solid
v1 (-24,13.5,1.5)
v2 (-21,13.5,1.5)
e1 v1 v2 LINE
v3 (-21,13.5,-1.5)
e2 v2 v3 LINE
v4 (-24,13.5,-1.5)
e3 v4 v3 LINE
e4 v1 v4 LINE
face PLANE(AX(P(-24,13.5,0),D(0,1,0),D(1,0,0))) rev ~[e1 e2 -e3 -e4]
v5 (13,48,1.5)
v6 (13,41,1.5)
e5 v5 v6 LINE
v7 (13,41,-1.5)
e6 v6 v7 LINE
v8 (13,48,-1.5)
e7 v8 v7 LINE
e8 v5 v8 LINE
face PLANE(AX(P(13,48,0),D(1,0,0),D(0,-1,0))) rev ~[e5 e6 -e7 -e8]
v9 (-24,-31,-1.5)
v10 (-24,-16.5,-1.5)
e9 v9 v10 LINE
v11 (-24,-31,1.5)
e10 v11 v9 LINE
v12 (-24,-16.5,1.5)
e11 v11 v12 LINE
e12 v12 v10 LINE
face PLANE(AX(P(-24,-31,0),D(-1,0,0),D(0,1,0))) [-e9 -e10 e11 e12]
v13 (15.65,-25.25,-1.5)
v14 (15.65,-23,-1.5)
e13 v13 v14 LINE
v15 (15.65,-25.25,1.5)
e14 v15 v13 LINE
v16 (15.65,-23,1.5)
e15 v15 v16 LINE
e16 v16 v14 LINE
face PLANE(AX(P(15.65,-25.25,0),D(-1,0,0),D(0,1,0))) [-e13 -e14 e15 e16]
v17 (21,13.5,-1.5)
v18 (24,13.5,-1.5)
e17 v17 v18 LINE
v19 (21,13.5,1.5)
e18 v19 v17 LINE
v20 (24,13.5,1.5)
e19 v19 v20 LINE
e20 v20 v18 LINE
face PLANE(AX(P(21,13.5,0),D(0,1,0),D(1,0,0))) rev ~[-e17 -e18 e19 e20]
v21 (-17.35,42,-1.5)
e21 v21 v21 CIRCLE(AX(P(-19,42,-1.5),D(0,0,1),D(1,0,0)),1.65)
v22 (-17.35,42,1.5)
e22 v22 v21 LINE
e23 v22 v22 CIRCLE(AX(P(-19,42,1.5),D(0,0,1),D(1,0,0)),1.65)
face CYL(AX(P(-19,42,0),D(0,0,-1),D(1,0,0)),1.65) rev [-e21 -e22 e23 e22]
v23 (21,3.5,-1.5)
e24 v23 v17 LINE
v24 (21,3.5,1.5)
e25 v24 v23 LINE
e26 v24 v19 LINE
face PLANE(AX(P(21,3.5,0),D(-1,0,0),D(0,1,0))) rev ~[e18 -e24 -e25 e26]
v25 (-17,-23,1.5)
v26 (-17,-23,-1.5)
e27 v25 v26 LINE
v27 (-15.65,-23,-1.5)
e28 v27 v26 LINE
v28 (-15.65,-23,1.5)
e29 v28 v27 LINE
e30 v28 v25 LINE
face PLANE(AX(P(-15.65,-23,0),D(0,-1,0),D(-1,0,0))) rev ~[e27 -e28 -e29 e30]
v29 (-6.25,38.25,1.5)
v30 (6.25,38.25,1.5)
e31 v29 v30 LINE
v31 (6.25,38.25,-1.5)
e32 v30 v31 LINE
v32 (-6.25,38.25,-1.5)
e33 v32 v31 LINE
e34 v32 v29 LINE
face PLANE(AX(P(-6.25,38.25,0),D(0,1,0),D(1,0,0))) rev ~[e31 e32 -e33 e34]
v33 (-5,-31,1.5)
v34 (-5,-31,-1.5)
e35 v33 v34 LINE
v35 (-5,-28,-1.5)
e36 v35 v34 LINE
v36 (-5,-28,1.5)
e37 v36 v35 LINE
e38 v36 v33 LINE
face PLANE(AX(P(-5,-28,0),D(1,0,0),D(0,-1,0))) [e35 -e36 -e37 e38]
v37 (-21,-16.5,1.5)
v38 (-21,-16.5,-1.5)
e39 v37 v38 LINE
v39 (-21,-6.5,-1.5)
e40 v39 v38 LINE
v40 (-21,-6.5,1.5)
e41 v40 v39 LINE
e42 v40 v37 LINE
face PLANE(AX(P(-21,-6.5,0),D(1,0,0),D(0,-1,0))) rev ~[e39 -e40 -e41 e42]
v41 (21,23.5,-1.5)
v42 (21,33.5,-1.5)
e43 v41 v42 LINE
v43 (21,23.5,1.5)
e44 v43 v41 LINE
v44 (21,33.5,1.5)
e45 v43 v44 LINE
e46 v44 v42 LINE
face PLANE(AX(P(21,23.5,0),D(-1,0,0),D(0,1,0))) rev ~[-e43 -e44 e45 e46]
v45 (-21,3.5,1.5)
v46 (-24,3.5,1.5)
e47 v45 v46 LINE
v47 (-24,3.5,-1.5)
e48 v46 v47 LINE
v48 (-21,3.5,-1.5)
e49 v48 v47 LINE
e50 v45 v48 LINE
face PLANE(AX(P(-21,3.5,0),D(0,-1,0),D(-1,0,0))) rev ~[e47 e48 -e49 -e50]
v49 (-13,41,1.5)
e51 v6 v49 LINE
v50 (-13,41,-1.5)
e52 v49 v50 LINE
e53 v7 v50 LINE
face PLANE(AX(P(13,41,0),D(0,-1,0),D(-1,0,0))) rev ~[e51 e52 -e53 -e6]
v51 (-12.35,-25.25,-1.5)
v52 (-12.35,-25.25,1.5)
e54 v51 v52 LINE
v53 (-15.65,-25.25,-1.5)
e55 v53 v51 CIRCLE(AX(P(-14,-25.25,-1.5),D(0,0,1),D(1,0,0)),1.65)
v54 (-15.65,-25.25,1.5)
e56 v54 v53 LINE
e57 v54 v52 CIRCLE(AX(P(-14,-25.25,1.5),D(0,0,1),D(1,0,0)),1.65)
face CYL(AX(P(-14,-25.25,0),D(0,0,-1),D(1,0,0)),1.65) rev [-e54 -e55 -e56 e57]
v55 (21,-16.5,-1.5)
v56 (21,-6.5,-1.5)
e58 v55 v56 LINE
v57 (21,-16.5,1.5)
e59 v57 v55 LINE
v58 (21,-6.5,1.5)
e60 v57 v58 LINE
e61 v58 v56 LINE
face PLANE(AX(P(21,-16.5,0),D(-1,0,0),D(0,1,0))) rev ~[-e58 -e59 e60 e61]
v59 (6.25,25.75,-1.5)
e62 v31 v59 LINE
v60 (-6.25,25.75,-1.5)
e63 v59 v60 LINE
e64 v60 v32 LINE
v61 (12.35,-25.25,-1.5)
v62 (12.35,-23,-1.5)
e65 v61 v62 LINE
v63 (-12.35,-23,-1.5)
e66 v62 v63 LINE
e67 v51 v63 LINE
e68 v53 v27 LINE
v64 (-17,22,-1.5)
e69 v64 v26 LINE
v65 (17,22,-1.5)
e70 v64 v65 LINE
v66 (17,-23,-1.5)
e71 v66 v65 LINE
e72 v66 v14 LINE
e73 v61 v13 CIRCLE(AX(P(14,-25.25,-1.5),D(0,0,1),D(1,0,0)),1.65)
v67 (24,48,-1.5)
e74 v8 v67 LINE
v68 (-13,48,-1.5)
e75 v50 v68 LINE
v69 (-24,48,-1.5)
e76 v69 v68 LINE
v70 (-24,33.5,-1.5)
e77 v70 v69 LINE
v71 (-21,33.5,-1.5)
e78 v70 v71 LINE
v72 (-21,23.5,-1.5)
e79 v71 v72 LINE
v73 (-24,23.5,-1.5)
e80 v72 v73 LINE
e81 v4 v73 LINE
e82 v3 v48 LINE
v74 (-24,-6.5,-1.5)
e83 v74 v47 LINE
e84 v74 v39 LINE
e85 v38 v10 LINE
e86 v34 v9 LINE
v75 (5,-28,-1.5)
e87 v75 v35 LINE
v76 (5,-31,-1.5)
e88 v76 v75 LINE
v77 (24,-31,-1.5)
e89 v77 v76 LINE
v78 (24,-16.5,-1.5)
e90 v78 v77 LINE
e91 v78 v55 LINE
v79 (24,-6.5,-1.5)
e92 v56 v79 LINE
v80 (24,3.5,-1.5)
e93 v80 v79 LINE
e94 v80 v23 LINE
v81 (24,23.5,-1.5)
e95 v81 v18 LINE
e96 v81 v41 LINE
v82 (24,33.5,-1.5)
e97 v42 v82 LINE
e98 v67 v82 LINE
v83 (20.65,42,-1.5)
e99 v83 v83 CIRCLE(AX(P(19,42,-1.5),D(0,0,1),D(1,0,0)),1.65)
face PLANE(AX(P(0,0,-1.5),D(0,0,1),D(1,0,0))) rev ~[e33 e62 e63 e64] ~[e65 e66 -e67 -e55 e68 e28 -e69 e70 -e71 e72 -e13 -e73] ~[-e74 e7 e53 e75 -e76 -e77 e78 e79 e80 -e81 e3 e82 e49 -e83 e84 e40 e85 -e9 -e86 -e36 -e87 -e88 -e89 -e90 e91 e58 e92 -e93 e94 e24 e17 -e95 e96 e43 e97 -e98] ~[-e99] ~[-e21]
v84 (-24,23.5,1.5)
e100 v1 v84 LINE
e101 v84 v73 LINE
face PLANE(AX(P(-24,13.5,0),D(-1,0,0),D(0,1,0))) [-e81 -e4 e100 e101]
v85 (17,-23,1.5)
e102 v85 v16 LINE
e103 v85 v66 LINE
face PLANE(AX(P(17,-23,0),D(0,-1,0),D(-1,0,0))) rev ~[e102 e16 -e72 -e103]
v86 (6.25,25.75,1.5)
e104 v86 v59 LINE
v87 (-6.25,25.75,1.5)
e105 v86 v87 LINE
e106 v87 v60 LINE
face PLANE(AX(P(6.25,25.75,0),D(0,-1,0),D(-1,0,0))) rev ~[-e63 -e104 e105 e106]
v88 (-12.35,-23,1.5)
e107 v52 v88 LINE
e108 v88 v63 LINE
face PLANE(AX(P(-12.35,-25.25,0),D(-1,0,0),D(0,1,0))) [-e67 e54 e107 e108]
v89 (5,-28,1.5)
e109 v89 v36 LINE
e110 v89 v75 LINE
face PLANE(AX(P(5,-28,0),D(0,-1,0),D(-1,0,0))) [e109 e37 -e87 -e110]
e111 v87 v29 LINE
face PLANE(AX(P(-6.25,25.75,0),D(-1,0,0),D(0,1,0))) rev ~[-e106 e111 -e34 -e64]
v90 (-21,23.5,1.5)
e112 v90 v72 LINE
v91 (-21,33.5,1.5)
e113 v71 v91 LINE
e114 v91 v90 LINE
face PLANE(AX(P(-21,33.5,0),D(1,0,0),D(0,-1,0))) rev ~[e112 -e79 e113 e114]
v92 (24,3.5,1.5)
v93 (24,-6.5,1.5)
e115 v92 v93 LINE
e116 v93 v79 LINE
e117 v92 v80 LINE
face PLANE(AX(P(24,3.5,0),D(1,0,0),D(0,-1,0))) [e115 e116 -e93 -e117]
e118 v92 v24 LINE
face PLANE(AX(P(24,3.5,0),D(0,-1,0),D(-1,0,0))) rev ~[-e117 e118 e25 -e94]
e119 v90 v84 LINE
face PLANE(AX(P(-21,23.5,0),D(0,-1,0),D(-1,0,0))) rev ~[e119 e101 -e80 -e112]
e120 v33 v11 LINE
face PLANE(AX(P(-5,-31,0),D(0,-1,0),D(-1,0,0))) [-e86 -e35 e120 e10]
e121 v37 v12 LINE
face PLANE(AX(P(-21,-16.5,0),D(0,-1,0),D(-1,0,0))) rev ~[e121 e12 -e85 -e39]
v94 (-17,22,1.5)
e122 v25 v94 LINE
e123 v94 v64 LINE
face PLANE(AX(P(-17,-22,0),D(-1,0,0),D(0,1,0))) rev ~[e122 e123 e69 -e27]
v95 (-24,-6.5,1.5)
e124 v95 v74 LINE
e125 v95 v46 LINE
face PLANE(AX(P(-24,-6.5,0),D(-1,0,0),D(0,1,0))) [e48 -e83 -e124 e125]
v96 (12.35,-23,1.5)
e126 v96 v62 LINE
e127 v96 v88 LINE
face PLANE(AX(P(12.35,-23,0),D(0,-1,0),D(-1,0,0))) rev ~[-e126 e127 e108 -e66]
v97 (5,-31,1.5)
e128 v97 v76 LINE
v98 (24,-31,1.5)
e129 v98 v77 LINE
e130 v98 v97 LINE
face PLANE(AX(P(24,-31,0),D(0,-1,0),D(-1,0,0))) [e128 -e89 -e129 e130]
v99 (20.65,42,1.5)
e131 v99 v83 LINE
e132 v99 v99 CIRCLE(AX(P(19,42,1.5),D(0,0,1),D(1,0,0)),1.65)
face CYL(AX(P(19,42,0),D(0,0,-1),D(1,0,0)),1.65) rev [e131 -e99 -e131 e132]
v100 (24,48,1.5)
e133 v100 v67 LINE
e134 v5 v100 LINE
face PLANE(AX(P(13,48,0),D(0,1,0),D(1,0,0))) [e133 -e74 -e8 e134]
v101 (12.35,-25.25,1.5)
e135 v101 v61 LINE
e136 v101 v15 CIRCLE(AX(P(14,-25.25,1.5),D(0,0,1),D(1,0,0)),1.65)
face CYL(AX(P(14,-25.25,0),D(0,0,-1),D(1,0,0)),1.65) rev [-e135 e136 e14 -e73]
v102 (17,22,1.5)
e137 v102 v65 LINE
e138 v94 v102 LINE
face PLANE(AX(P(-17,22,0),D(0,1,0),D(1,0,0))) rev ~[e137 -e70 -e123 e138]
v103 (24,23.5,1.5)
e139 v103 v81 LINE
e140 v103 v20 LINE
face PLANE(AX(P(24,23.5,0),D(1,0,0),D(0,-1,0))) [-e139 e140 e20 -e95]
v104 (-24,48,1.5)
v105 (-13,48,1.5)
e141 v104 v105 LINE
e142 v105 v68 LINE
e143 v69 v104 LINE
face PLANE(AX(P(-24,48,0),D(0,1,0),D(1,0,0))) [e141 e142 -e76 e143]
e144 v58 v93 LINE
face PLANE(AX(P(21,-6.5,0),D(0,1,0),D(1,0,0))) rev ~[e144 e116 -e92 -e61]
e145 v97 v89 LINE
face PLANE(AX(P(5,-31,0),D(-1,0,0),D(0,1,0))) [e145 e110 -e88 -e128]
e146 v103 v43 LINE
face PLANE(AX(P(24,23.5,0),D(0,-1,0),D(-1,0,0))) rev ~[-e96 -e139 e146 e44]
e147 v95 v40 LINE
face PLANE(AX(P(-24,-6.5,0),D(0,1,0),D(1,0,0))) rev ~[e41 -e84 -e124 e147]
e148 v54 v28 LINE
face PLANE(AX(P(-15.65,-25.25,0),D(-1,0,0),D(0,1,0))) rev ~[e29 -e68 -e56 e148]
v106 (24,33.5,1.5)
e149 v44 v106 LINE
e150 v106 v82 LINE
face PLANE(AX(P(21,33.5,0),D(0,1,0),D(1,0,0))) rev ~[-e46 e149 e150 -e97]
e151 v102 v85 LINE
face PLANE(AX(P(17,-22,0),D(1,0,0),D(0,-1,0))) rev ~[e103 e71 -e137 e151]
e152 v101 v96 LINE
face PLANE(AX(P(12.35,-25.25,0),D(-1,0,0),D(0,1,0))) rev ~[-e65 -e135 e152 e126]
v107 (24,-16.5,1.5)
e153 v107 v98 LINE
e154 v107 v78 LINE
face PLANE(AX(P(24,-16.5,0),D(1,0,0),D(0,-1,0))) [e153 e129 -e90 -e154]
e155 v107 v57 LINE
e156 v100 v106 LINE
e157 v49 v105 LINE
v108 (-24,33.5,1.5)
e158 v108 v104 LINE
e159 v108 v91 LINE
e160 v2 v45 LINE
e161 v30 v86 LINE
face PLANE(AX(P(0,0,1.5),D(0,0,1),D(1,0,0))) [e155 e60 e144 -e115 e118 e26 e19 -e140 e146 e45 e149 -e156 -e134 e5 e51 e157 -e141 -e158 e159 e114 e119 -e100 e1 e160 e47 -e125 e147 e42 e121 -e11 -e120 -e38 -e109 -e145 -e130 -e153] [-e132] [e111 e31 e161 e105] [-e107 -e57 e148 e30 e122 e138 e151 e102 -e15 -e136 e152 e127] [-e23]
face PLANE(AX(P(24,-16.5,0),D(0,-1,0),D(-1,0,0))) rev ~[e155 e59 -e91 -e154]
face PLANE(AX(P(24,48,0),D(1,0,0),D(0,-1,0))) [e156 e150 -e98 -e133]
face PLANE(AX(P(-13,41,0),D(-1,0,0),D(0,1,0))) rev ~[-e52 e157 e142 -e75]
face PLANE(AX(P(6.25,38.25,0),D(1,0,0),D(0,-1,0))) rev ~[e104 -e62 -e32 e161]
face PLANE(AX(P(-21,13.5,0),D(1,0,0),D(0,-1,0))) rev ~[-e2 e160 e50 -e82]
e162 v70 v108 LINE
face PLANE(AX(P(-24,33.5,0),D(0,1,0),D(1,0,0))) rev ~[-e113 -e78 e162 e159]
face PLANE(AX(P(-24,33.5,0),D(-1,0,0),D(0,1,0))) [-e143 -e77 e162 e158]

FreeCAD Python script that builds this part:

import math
import FreeCAD as App
import Part
import Sketcher
Q = App.Units.Quantity


def add_polygon(sketch, points):
    """Adds a closed chain of lines whose ends are joined by coincident constraints."""
    first, n = sketch.GeometryCount, len(points)
    for a, b in zip(points, points[1:] + points[:1]):
        sketch.addGeometry(Part.LineSegment(App.Vector(*a, 0), App.Vector(*b, 0)), False)
    for i in range(n):
        sketch.addConstraint(Sketcher.Constraint("Coincident", first + i, 2, first + (i + 1) % n, 1))

doc = App.newDocument("Part")
params = doc.addObject("Spreadsheet::Sheet", "Params")
for row, (alias, value) in enumerate([
    ("sketch1_diameter", "3.3 mm"),
    ("sketch1_width", "3 mm"),
    ("sketch1_width2", "19 mm"),
    ("sketch1_width3", "10 mm"),
    ("sketch1_width4", "26 mm"),
    ("pad1_length", "3 mm"),
], start=1):
    params.set(f"A{row}", alias)
    params.set(f"B{row}", "=" + value)
    params.setAlias(f"B{row}", alias)

body = doc.addObject("PartDesign::Body", "Body")

# Sketch on XY plane
sketch1 = body.newObject("Sketcher::SketchObject", "Sketch")
sketch1.AttachmentSupport = (doc.getObject("XY_Plane"), [""])
sketch1.MapMode = "FlatFace"
add_polygon(sketch1, [(-13, 48), (-24, 48), (-24, 33.5), (-21, 33.5), (-21, 23.5), (-24, 23.5), (-24, 13.5), (-21, 13.5), (-21, 3.5), (-24, 3.5), (-24, -6.5), (-21, -6.5), (-21, -16.5), (-24, -16.5), (-24, -31), (-5, -31), (-5, -28), (5, -28), (5, -31), (24, -31), (24, -16.5), (21, -16.5), (21, -6.5), (24, -6.5), (24, 3.5), (21, 3.5), (21, 13.5), (24, 13.5), (24, 23.5), (21, 23.5), (21, 33.5), (24, 33.5), (24, 48), (13, 48), (13, 41), (-13, 41)])  # lines 0-35
sketch1.addGeometry(Part.LineSegment(App.Vector(-12.3, -23, 0), App.Vector(-12.3, -25.2, 0)), False)  # 36
sketch1.addGeometry(Part.ArcOfCircle(Part.Circle(App.Vector(-14, -25.2, 0), App.Vector(0, 0, 1), 1.6), math.radians(180), math.radians(360)), False)  # 37
sketch1.addGeometry(Part.LineSegment(App.Vector(-15.7, -25.2, 0), App.Vector(-15.7, -23, 0)), False)  # 38
sketch1.addGeometry(Part.LineSegment(App.Vector(-15.7, -23, 0), App.Vector(-17, -23, 0)), False)  # 39
sketch1.addGeometry(Part.LineSegment(App.Vector(-17, -23, 0), App.Vector(-17, 22, 0)), False)  # 40
sketch1.addGeometry(Part.LineSegment(App.Vector(-17, 22, 0), App.Vector(17, 22, 0)), False)  # 41
sketch1.addGeometry(Part.LineSegment(App.Vector(17, 22, 0), App.Vector(17, -23, 0)), False)  # 42
sketch1.addGeometry(Part.LineSegment(App.Vector(17, -23, 0), App.Vector(15.7, -23, 0)), False)  # 43
sketch1.addGeometry(Part.LineSegment(App.Vector(15.7, -23, 0), App.Vector(15.7, -25.2, 0)), False)  # 44
sketch1.addGeometry(Part.ArcOfCircle(Part.Circle(App.Vector(14, -25.2, 0), App.Vector(0, 0, 1), 1.6), math.radians(180), math.radians(360)), False)  # 45
sketch1.addGeometry(Part.LineSegment(App.Vector(12.3, -25.2, 0), App.Vector(12.3, -23, 0)), False)  # 46
sketch1.addGeometry(Part.LineSegment(App.Vector(12.3, -23, 0), App.Vector(-12.3, -23, 0)), False)  # 47
sketch1.addGeometry(Part.Circle(App.Vector(-19, 42, 0), App.Vector(0, 0, 1), 1.6), False)  # 48
add_polygon(sketch1, [(-6.2, 25.8), (-6.2, 38.2), (6.2, 38.2), (6.2, 25.8)])  # lines 49-52
sketch1.addGeometry(Part.Circle(App.Vector(19, 42, 0), App.Vector(0, 0, 1), 1.6), False)  # 53
sketch1.addConstraint(Sketcher.Constraint("Tangent", 36, 2, 37, 2))
sketch1.addConstraint(Sketcher.Constraint("Tangent", 37, 1, 38, 1))
sketch1.addConstraint(Sketcher.Constraint("Coincident", 38, 2, 39, 1))
sketch1.addConstraint(Sketcher.Constraint("Coincident", 39, 2, 40, 1))
sketch1.addConstraint(Sketcher.Constraint("Coincident", 40, 2, 41, 1))
sketch1.addConstraint(Sketcher.Constraint("Coincident", 41, 2, 42, 1))
sketch1.addConstraint(Sketcher.Constraint("Coincident", 42, 2, 43, 1))
sketch1.addConstraint(Sketcher.Constraint("Coincident", 43, 2, 44, 1))
sketch1.addConstraint(Sketcher.Constraint("Tangent", 44, 2, 45, 2))
sketch1.addConstraint(Sketcher.Constraint("Tangent", 45, 1, 46, 1))
sketch1.addConstraint(Sketcher.Constraint("Coincident", 46, 2, 47, 1))
sketch1.addConstraint(Sketcher.Constraint("Coincident", 47, 2, 36, 1))
sketch1.addConstraint(Sketcher.Constraint("Horizontal", 0))
sketch1.addConstraint(Sketcher.Constraint("Vertical", 1))
sketch1.addConstraint(Sketcher.Constraint("Horizontal", 2))
sketch1.addConstraint(Sketcher.Constraint("Vertical", 3))
sketch1.addConstraint(Sketcher.Constraint("Horizontal", 4))
sketch1.addConstraint(Sketcher.Constraint("Vertical", 5))
sketch1.addConstraint(Sketcher.Constraint("Horizontal", 6))
sketch1.addConstraint(Sketcher.Constraint("Vertical", 7))
sketch1.addConstraint(Sketcher.Constraint("Horizontal", 8))
sketch1.addConstraint(Sketcher.Constraint("Vertical", 9))
sketch1.addConstraint(Sketcher.Constraint("Horizontal", 10))
sketch1.addConstraint(Sketcher.Constraint("Vertical", 11))
sketch1.addConstraint(Sketcher.Constraint("Horizontal", 12))
sketch1.addConstraint(Sketcher.Constraint("Vertical", 13))
sketch1.addConstraint(Sketcher.Constraint("Horizontal", 14))
sketch1.addConstraint(Sketcher.Constraint("Vertical", 15))
sketch1.addConstraint(Sketcher.Constraint("Horizontal", 16))
sketch1.addConstraint(Sketcher.Constraint("Vertical", 17))
sketch1.addConstraint(Sketcher.Constraint("Horizontal", 18))
sketch1.addConstraint(Sketcher.Constraint("Vertical", 19))
sketch1.addConstraint(Sketcher.Constraint("Horizontal", 20))
sketch1.addConstraint(Sketcher.Constraint("Vertical", 21))
sketch1.addConstraint(Sketcher.Constraint("Horizontal", 22))
sketch1.addConstraint(Sketcher.Constraint("Vertical", 23))
sketch1.addConstraint(Sketcher.Constraint("Horizontal", 24))
sketch1.addConstraint(Sketcher.Constraint("Vertical", 25))
sketch1.addConstraint(Sketcher.Constraint("Horizontal", 26))
sketch1.addConstraint(Sketcher.Constraint("Vertical", 27))
sketch1.addConstraint(Sketcher.Constraint("Horizontal", 28))
sketch1.addConstraint(Sketcher.Constraint("Vertical", 29))
sketch1.addConstraint(Sketcher.Constraint("Horizontal", 30))
sketch1.addConstraint(Sketcher.Constraint("Vertical", 31))
sketch1.addConstraint(Sketcher.Constraint("Horizontal", 32))
sketch1.addConstraint(Sketcher.Constraint("Vertical", 33))
sketch1.addConstraint(Sketcher.Constraint("Horizontal", 34))
sketch1.addConstraint(Sketcher.Constraint("Vertical", 35))
sketch1.addConstraint(Sketcher.Constraint("Vertical", 36))
sketch1.addConstraint(Sketcher.Constraint("Vertical", 38))
sketch1.addConstraint(Sketcher.Constraint("Horizontal", 39))
sketch1.addConstraint(Sketcher.Constraint("Vertical", 40))
sketch1.addConstraint(Sketcher.Constraint("Horizontal", 41))
sketch1.addConstraint(Sketcher.Constraint("Vertical", 42))
sketch1.addConstraint(Sketcher.Constraint("Horizontal", 43))
sketch1.addConstraint(Sketcher.Constraint("Vertical", 44))
sketch1.addConstraint(Sketcher.Constraint("Vertical", 46))
sketch1.addConstraint(Sketcher.Constraint("Horizontal", 47))
sketch1.addConstraint(Sketcher.Constraint("Vertical", 49))
sketch1.addConstraint(Sketcher.Constraint("Horizontal", 50))
sketch1.addConstraint(Sketcher.Constraint("Vertical", 51))
sketch1.addConstraint(Sketcher.Constraint("Horizontal", 52))
sketch1.addConstraint(Sketcher.Constraint("Equal", 37, 45))
sketch1.addConstraint(Sketcher.Constraint("Equal", 45, 48))
sketch1.addConstraint(Sketcher.Constraint("Equal", 48, 53))
sketch1.addConstraint(Sketcher.Constraint("Symmetric", 37, 3, 45, 3, -2))
sketch1.addConstraint(Sketcher.Constraint("Symmetric", 48, 3, 53, 3, -2))
sketch1.addConstraint(Sketcher.Constraint("Symmetric", 14, 2, 17, 2, -2))
sketch1.addConstraint(Sketcher.Constraint("Symmetric", 12, 2, 19, 2, -2))
sketch1.addConstraint(Sketcher.Constraint("Symmetric", 10, 2, 21, 2, -2))
sketch1.addConstraint(Sketcher.Constraint("Symmetric", 8, 2, 23, 2, -2))
sketch1.addConstraint(Sketcher.Constraint("Symmetric", 6, 2, 25, 2, -2))
sketch1.addConstraint(Sketcher.Constraint("Symmetric", 4, 2, 27, 2, -2))
sketch1.addConstraint(Sketcher.Constraint("Symmetric", 2, 2, 29, 2, -2))
sketch1.addConstraint(Sketcher.Constraint("Symmetric", 0, 2, 31, 2, -2))
sketch1.addConstraint(Sketcher.Constraint("Symmetric", 39, 2, 42, 2, -2))
sketch1.addConstraint(Sketcher.Constraint("Horizontal", 43, 2, 46, 2))
sketch1.addConstraint(Sketcher.Constraint("Vertical", 1, 2, 4, 2))
sketch1.addConstraint(Sketcher.Constraint("Vertical", 3, 2, 6, 2))
sketch1.addConstraint(Sketcher.Constraint("Vertical", 5, 2, 8, 2))
sketch1.addConstraint(Sketcher.Constraint("Vertical", 7, 2, 10, 2))
sketch1.addConstraint(Sketcher.Constraint("Vertical", 9, 2, 12, 2))
sketch1.addConstraint(Sketcher.Constraint("Equal", 0, 32))
sketch1.addConstraint(Sketcher.Constraint("Equal", 16, 3))
sketch1.addConstraint(Sketcher.Constraint("Equal", 3, 5))
sketch1.addConstraint(Sketcher.Constraint("Equal", 5, 7))
sketch1.addConstraint(Sketcher.Constraint("Equal", 7, 9))
sketch1.addConstraint(Sketcher.Constraint("Equal", 9, 11))
sketch1.addConstraint(Sketcher.Constraint("Equal", 1, 13))
sketch1.addConstraint(Sketcher.Constraint("Equal", 30, 15))
sketch1.addConstraint(Sketcher.Constraint("Equal", 52, 49))
sketch1.addConstraint(Sketcher.Constraint("Diameter", 48, Q("3.3 mm")))
sketch1.addConstraint(Sketcher.Constraint("DistanceX", 2, 1, 2, 2, Q("3 mm")))
sketch1.addConstraint(Sketcher.Constraint("DistanceX", 14, 1, 14, 2, Q("19 mm")))
sketch1.addConstraint(Sketcher.Constraint("DistanceX", 16, 1, 16, 2, Q("10 mm")))
sketch1.addConstraint(Sketcher.Constraint("DistanceX", 34, 2, 34, 1, Q("26 mm")))
sketch1.addConstraint(Sketcher.Constraint("DistanceX", 41, 1, 41, 2, Q("34 mm")))
sketch1.addConstraint(Sketcher.Constraint("DistanceY", 33, 2, 33, 1, Q("7 mm")))
sketch1.addConstraint(Sketcher.Constraint("DistanceX", 50, 1, 50, 2, Q("12.5 mm")))
sketch1.addConstraint(Sketcher.Constraint("DistanceX", 37, 3, -1, 1, Q("14 mm")))
sketch1.addConstraint(Sketcher.Constraint("DistanceX", 48, 3, -1, 1, Q("19 mm")))
sketch1.addConstraint(Sketcher.Constraint("DistanceY", 15, 2, -1, 1, Q("28 mm")))
sketch1.addConstraint(Sketcher.Constraint("DistanceY", 33, 2, 53, 3, Q("1 mm")))
sketch1.addConstraint(Sketcher.Constraint("DistanceY", 16, 2, 42, 2, Q("5 mm")))
sketch1.addConstraint(Sketcher.Constraint("DistanceY", 40, 1, 40, 2, Q("45 mm")))
sketch1.addConstraint(Sketcher.Constraint("DistanceY", 1, 2, 1, 1, Q("14.5 mm")))
sketch1.addConstraint(Sketcher.Constraint("DistanceY", 36, 2, 36, 1, Q("2.25 mm")))
sketch1.addConstraint(Sketcher.Constraint("DistanceX", 49, 2, -1, 1, Q("6.25 mm")))
sketch1.addConstraint(Sketcher.Constraint("DistanceY", -1, 1, 49, 2, Q("38.25 mm")))
sketch1.setExpression("Constraints[131]", "Params.sketch1_diameter")
sketch1.setExpression("Constraints[132]", "Params.sketch1_width")
sketch1.setExpression("Constraints[133]", "Params.sketch1_width2")
sketch1.setExpression("Constraints[134]", "Params.sketch1_width3")
sketch1.setExpression("Constraints[135]", "Params.sketch1_width4")
pad1 = body.newObject("PartDesign::Pad", "Pad")
pad1.Profile = sketch1
pad1.setExpression("Length", "Params.pad1_length")
pad1.Midplane = True

doc.recompute()
